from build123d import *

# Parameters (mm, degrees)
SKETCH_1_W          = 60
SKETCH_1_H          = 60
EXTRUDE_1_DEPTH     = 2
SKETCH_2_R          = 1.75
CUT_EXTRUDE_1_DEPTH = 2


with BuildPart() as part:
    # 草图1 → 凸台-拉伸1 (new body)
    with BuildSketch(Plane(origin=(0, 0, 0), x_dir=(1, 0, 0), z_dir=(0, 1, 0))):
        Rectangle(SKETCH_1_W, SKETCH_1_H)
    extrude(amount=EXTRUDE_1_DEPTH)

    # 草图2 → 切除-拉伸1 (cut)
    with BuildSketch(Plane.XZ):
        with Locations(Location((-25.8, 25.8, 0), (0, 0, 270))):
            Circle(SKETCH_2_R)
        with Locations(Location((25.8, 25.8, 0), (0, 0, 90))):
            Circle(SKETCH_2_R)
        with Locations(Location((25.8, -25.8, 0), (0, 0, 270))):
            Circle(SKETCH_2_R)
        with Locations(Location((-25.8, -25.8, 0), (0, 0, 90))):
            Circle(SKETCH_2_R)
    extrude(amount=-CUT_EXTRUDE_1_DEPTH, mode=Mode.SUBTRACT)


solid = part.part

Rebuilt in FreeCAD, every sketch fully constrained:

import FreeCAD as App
import Part
import Sketcher

doc = App.newDocument("Part")
params = doc.addObject("Spreadsheet::Sheet", "Params")
for row, (alias, value) in enumerate([
    ("sketch1_width", "60 mm"),
    ("pad1_length", "2 mm"),
    ("sketch2_diameter", "3.5 mm"),
    ("pocket1_length", "2 mm"),
], start=1):
    params.set(f"A{row}", alias)
    params.set(f"B{row}", "=" + value)
    params.setAlias(f"B{row}", alias)

body = doc.addObject("PartDesign::Body", "Body")

# Sketch on XZ plane
sketch1 = body.newObject("Sketcher::SketchObject", "Sketch")
sketch1.AttachmentSupport = (doc.getObject("XZ_Plane"), [""])
sketch1.MapMode = "FlatFace"
sketch1.addGeometry(Part.LineSegment(App.Vector(-30, -30, 0), App.Vector(-30, 30, 0)), False)
sketch1.addGeometry(Part.LineSegment(App.Vector(-30, 30, 0), App.Vector(30, 30, 0)), False)
sketch1.addGeometry(Part.LineSegment(App.Vector(30, 30, 0), App.Vector(30, -30, 0)), False)
sketch1.addGeometry(Part.LineSegment(App.Vector(30, -30, 0), App.Vector(-30, -30, 0)), False)
sketch1.addConstraint(Sketcher.Constraint("Coincident", 0, 2, 1, 1))
sketch1.addConstraint(Sketcher.Constraint("Coincident", 1, 2, 2, 1))
sketch1.addConstraint(Sketcher.Constraint("Coincident", 2, 2, 3, 1))
sketch1.addConstraint(Sketcher.Constraint("Coincident", 3, 2, 0, 1))
sketch1.addConstraint(Sketcher.Constraint("Vertical", 0))
sketch1.addConstraint(Sketcher.Constraint("Horizontal", 1))
sketch1.addConstraint(Sketcher.Constraint("Vertical", 2))
sketch1.addConstraint(Sketcher.Constraint("Horizontal", 3))
sketch1.addConstraint(Sketcher.Constraint("Symmetric", 0, 2, 2, 2, -1, 1))
sketch1.addConstraint(Sketcher.Constraint("Equal", 3, 0))
sketch1.addConstraint(Sketcher.Constraint("DistanceX", 1, 1, 1, 2, 60.0))
sketch1.setExpression("Constraints[10]", "Params.sketch1_width")
pad1 = body.newObject("PartDesign::Pad", "Pad")
pad1.Profile = sketch1
pad1.setExpression("Length", "Params.pad1_length")
pad1.Reversed = True

# Sketch on XZ plane
sketch2 = body.newObject("Sketcher::SketchObject", "Sketch001")
sketch2.AttachmentSupport = (doc.getObject("XZ_Plane"), [""])
sketch2.MapMode = "FlatFace"
sketch2.addGeometry(Part.Circle(App.Vector(-25.8, 25.8, 0), App.Vector(0, 0, 1), 1.8), False)
sketch2.addGeometry(Part.Circle(App.Vector(25.8, 25.8, 0), App.Vector(0, 0, 1), 1.8), False)
sketch2.addGeometry(Part.Circle(App.Vector(25.8, -25.8, 0), App.Vector(0, 0, 1), 1.8), False)
sketch2.addGeometry(Part.Circle(App.Vector(-25.8, -25.8, 0), App.Vector(0, 0, 1), 1.8), False)
sketch2.addConstraint(Sketcher.Constraint("Equal", 0, 1))
sketch2.addConstraint(Sketcher.Constraint("Equal", 1, 2))
sketch2.addConstraint(Sketcher.Constraint("Equal", 2, 3))
sketch2.addConstraint(Sketcher.Constraint("Symmetric", 0, 3, 2, 3, -1, 1))
sketch2.addConstraint(Sketcher.Constraint("Symmetric", 1, 3, 3, 3, -1, 1))
sketch2.addConstraint(Sketcher.Constraint("Symmetric", 0, 3, 1, 3, -2))
sketch2.addConstraint(Sketcher.Constraint("Diameter", 0, 3.5))
sketch2.addConstraint(Sketcher.Constraint("DistanceX", 0, 3, -1, 1, 25.8))
sketch2.addConstraint(Sketcher.Constraint("DistanceY", -1, 1, 0, 3, 25.8))
sketch2.setExpression("Constraints[6]", "Params.sketch2_diameter")
pocket1 = body.newObject("PartDesign::Pocket", "Pocket")
pocket1.Profile = sketch2
pocket1.setExpression("Length", "Params.pocket1_length")

doc.recompute()
